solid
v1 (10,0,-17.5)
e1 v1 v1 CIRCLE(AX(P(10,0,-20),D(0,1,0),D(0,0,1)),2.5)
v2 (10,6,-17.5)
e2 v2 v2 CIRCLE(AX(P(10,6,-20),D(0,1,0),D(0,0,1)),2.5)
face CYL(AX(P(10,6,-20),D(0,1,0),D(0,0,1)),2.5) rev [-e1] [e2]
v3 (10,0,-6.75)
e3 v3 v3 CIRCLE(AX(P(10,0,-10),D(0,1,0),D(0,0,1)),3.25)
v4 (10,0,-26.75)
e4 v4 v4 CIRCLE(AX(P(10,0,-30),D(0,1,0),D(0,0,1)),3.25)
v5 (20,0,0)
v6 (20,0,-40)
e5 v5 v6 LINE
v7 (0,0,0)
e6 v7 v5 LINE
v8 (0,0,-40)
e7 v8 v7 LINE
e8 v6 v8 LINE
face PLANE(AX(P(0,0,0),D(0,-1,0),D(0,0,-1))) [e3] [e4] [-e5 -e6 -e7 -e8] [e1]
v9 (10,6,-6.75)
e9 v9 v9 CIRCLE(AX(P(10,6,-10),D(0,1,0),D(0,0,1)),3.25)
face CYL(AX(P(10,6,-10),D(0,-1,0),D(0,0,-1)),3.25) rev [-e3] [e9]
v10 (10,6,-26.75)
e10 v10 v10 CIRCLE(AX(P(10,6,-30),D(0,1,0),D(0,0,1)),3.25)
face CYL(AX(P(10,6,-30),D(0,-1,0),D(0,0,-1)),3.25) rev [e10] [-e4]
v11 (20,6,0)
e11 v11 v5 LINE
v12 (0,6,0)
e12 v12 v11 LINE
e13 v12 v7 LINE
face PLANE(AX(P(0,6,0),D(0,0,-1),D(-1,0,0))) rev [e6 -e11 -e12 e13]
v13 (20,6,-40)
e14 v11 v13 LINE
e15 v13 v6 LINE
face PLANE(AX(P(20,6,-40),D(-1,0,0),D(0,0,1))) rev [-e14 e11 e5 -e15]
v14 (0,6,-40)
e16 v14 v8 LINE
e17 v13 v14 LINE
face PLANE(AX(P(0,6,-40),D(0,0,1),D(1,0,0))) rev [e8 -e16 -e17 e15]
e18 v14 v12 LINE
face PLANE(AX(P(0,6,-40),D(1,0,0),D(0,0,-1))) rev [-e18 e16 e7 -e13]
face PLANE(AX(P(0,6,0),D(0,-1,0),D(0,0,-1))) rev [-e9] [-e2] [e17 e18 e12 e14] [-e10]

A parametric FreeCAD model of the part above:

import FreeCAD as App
import Part
import Sketcher
Q = App.Units.Quantity


def add_polygon(sketch, points):
    """Adds a closed chain of lines whose ends are joined by coincident constraints."""
    first, n = sketch.GeometryCount, len(points)
    for a, b in zip(points, points[1:] + points[:1]):
        sketch.addGeometry(Part.LineSegment(App.Vector(*a, 0), App.Vector(*b, 0)), False)
    for i in range(n):
        sketch.addConstraint(Sketcher.Constraint("Coincident", first + i, 2, first + (i + 1) % n, 1))

doc = App.newDocument("Part")
params = doc.addObject("Spreadsheet::Sheet", "Params")
for row, (alias, value) in enumerate([
    ("sketch1_diameter", "6.5 mm"),
    ("sketch1_width", "20 mm"),
    ("sketch1_height", "40 mm"),
    ("pad1_length", "6 mm"),
    ("sketch2_diameter", "5 mm"),
    ("hole_diameter", "5 mm"),
], start=1):
    params.set(f"A{row}", alias)
    params.set(f"B{row}", "=" + value)
    params.setAlias(f"B{row}", alias)

body = doc.addObject("PartDesign::Body", "Body")

# Sketch on XZ plane
sketch1 = doc.addObject("Sketcher::SketchObject", "Sketch")
body.addObject(sketch1)
sketch1.AttachmentSupport = (doc.XZ_Plane, [""])
sketch1.MapMode = "FlatFace"
add_polygon(sketch1, [(0, -40), (0, 0), (20, 0), (20, -40)])  # lines 0-3
sketch1.addGeometry(Part.Circle(App.Vector(10, -10, 0), App.Vector(0, 0, 1), 3.2), False)  # 4
sketch1.addGeometry(Part.Circle(App.Vector(10, -30, 0), App.Vector(0, 0, 1), 3.2), False)  # 5
sketch1.addConstraint([
    Sketcher.Constraint("Vertical", 0),
    Sketcher.Constraint("Horizontal", 1),
    Sketcher.Constraint("Vertical", 2),
    Sketcher.Constraint("Horizontal", 3),
    Sketcher.Constraint("Coincident", 0, 2, -1, 1),
    Sketcher.Constraint("Equal", 4, 5),
    Sketcher.Constraint("Vertical", 4, 3, 5, 3),
    Sketcher.Constraint("Diameter", 4, Q("6.5 mm")),
    Sketcher.Constraint("DistanceX", 1, 1, 1, 2, Q("20 mm")),
    Sketcher.Constraint("DistanceY", 0, 1, 0, 2, Q("40 mm")),
    Sketcher.Constraint("DistanceX", -1, 1, 4, 3, Q("10 mm")),
    Sketcher.Constraint("DistanceY", 4, 3, -1, 1, Q("10 mm")),
    Sketcher.Constraint("DistanceY", 5, 3, -1, 1, Q("30 mm")),
])
sketch1.setExpression("Constraints[11]", "Params.sketch1_diameter")
sketch1.setExpression("Constraints[12]", "Params.sketch1_width")
sketch1.setExpression("Constraints[13]", "Params.sketch1_height")
pad1 = doc.addObject("PartDesign::Pad", "Pad")
body.addObject(pad1)
pad1.Profile = sketch1
pad1.setExpression("Length", "Params.pad1_length")
pad1.Reversed = True

# Sketch on XZ plane
sketch2 = doc.addObject("Sketcher::SketchObject", "Sketch001")
body.addObject(sketch2)
sketch2.AttachmentSupport = (doc.XZ_Plane, [""])
sketch2.MapMode = "FlatFace"
sketch2.AttachmentOffset = App.Placement(App.Vector(0, 0, -6), App.Rotation())
sketch2.addGeometry(Part.Circle(App.Vector(10, -20, 0), App.Vector(0, 0, 1), 2.5), False)
sketch2.addConstraint([
    Sketcher.Constraint("Diameter", 0, Q("5 mm")),
    Sketcher.Constraint("DistanceX", -1, 1, 0, 3, Q("10 mm")),
    Sketcher.Constraint("DistanceY", 0, 3, -1, 1, Q("20 mm")),
])
sketch2.setExpression("Constraints[0]", "Params.sketch2_diameter")
doc.recompute()
hole = doc.addObject("PartDesign::Hole", "Hole")
body.addObject(hole)
hole.Profile = sketch2
hole.ThreadType = "None"
hole.setExpression("Diameter", "Params.hole_diameter")
hole.DepthType = "ThroughAll"
hole.Reversed = True

doc.recompute()
